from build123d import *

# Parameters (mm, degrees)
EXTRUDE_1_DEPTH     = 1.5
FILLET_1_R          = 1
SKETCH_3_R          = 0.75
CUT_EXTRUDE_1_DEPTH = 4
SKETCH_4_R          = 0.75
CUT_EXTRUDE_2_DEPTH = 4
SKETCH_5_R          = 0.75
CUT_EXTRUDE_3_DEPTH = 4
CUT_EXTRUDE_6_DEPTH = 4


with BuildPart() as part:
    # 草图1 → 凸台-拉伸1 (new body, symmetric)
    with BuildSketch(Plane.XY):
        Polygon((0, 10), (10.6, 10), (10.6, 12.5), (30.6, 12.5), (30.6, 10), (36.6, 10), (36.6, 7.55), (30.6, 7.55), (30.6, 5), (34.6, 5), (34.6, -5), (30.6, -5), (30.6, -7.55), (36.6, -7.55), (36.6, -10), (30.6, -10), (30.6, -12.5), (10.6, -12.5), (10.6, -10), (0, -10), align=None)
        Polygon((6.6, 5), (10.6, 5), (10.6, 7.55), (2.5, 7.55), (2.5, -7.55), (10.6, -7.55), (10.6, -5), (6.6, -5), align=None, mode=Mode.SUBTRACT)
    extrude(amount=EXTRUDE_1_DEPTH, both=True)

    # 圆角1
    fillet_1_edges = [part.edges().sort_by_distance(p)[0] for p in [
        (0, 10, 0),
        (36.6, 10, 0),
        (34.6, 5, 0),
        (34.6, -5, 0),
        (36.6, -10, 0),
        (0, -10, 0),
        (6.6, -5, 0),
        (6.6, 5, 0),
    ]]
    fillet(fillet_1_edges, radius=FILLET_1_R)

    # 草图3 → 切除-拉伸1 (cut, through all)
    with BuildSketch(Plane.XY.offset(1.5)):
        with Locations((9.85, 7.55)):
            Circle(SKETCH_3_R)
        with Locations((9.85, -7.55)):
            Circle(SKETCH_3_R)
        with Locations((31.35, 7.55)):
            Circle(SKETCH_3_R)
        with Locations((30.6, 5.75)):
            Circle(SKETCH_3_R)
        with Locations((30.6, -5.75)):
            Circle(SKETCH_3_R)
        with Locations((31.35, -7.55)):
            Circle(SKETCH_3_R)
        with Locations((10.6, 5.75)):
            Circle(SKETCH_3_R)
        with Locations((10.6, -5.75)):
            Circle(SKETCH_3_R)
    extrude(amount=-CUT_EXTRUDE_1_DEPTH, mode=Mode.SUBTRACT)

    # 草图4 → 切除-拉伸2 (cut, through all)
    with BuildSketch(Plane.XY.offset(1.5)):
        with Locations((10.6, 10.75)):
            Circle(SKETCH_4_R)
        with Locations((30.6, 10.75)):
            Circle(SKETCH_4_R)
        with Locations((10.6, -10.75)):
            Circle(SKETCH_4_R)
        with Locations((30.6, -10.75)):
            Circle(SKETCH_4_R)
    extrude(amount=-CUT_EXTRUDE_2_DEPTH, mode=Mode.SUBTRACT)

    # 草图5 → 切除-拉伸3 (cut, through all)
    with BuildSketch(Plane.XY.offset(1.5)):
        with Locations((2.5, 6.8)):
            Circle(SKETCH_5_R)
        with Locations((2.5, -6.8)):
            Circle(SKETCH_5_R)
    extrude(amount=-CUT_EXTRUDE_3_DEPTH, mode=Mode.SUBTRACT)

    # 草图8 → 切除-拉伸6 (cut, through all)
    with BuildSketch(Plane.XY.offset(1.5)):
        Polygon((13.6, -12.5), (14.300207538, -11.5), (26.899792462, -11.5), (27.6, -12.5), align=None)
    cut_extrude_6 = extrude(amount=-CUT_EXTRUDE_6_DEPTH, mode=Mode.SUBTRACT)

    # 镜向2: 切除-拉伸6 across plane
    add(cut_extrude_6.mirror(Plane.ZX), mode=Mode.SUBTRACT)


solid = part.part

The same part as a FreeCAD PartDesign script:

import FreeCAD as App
import Part
import Sketcher
Q = App.Units.Quantity


def edges_at(feature, points):
    """Names of the edges that pass closest to the given points."""
    edges = feature.Shape.Edges
    near = lambda p: min(range(len(edges)), key=lambda i: edges[i].distToShape(Part.Vertex(*p))[0])
    return sorted({f"Edge{near(p) + 1}" for p in points})


def add_polygon(sketch, points):
    """Adds a closed chain of lines whose ends are joined by coincident constraints."""
    first, n = sketch.GeometryCount, len(points)
    for a, b in zip(points, points[1:] + points[:1]):
        sketch.addGeometry(Part.LineSegment(App.Vector(*a, 0), App.Vector(*b, 0)), False)
    for i in range(n):
        sketch.addConstraint(Sketcher.Constraint("Coincident", first + i, 2, first + (i + 1) % n, 1))

doc = App.newDocument("Part")
body = doc.addObject("PartDesign::Body", "Body")

# Sketch on XY plane
sketch1 = body.newObject("Sketcher::SketchObject", "Sketch")
sketch1.AttachmentSupport = (doc.getObject("XY_Plane"), [""])
sketch1.MapMode = "FlatFace"
add_polygon(sketch1, [(10.6, 10), (0, 10), (0, -10), (10.6, -10), (10.6, -12.5), (30.6, -12.5), (30.6, -10), (36.6, -10), (36.6, -7.5), (30.6, -7.5), (30.6, -5), (34.6, -5), (34.6, 5), (30.6, 5), (30.6, 7.5), (36.6, 7.5), (36.6, 10), (30.6, 10), (30.6, 12.5), (10.6, 12.5)])  # lines 0-19
add_polygon(sketch1, [(6.6, 5), (6.6, -5), (10.6, -5), (10.6, -7.5), (2.5, -7.5), (2.5, 7.5), (10.6, 7.5), (10.6, 5)])  # lines 20-27
sketch1.addConstraint([
    Sketcher.Constraint("Horizontal", 0),
    Sketcher.Constraint("Vertical", 1),
    Sketcher.Constraint("Horizontal", 2),
    Sketcher.Constraint("Vertical", 3),
    Sketcher.Constraint("Horizontal", 4),
    Sketcher.Constraint("Vertical", 5),
    Sketcher.Constraint("Horizontal", 6),
    Sketcher.Constraint("Vertical", 7),
    Sketcher.Constraint("Horizontal", 8),
    Sketcher.Constraint("Vertical", 9),
    Sketcher.Constraint("Horizontal", 10),
    Sketcher.Constraint("Vertical", 11),
    Sketcher.Constraint("Horizontal", 12),
    Sketcher.Constraint("Vertical", 13),
    Sketcher.Constraint("Horizontal", 14),
    Sketcher.Constraint("Vertical", 15),
    Sketcher.Constraint("Horizontal", 16),
    Sketcher.Constraint("Vertical", 17),
    Sketcher.Constraint("Horizontal", 18),
    Sketcher.Constraint("Vertical", 19),
    Sketcher.Constraint("Vertical", 20),
    Sketcher.Constraint("Horizontal", 21),
    Sketcher.Constraint("Vertical", 22),
    Sketcher.Constraint("Horizontal", 23),
    Sketcher.Constraint("Vertical", 24),
    Sketcher.Constraint("Horizontal", 25),
    Sketcher.Constraint("Vertical", 26),
    Sketcher.Constraint("Horizontal", 27),
    Sketcher.Constraint("Symmetric", 0, 2, 1, 2, -1, 1),
    Sketcher.Constraint("Symmetric", 9, 2, 12, 2, -1),
    Sketcher.Constraint("Symmetric", 7, 2, 14, 2, -1),
    Sketcher.Constraint("Symmetric", 5, 2, 16, 2, -1),
    Sketcher.Constraint("Symmetric", 3, 2, 18, 2, -1),
    Sketcher.Constraint("Symmetric", 22, 2, 25, 2, -1),
    Sketcher.Constraint("Horizontal", 2, 2, 5, 2),
    Sketcher.Constraint("Horizontal", 10, 2, 20, 2),
    Sketcher.Constraint("Horizontal", 8, 2, 22, 2),
    Sketcher.Constraint("Horizontal", 12, 2, 26, 2),
    Sketcher.Constraint("Vertical", 5, 2, 8, 2),
    Sketcher.Constraint("Vertical", 19, 2, 21, 2),
    Sketcher.Constraint("Equal", 12, 21),
    Sketcher.Constraint("Equal", 18, 1),
    Sketcher.Constraint("DistanceX", 4, 1, 4, 2, Q("20 mm")),
    Sketcher.Constraint("DistanceX", 6, 1, 6, 2, Q("6 mm")),
    Sketcher.Constraint("DistanceX", 10, 1, 10, 2, Q("4 mm")),
    Sketcher.Constraint("DistanceY", 11, 1, 11, 2, Q("10 mm")),
    Sketcher.Constraint("DistanceX", 0, 2, 0, 1, Q("10.6 mm")),
    Sketcher.Constraint("DistanceX", 23, 2, 23, 1, Q("8.1 mm")),
    Sketcher.Constraint("DistanceY", 3, 2, 3, 1, Q("2.5 mm")),
    Sketcher.Constraint("DistanceY", 24, 1, 24, 2, Q("15.1 mm")),
])
pad1 = body.newObject("PartDesign::Pad", "Pad")
pad1.Profile = sketch1
pad1.Length = 3
pad1.Midplane = True
doc.recompute()

fillet = body.newObject("PartDesign::Fillet", "Fillet")
fillet.Base = (pad1, edges_at(pad1, [
    (0, 10, 0),
    (36.6, 10, 0),
    (34.6, 5, 0),
    (34.6, -5, 0),
    (36.6, -10, 0),
    (0, -10, 0),
    (6.6, -5, 0),
    (6.6, 5, 0),
]))
fillet.Radius = 1

# Sketch on XY plane
sketch2 = body.newObject("Sketcher::SketchObject", "Sketch001")
sketch2.AttachmentSupport = (doc.getObject("XY_Plane"), [""])
sketch2.MapMode = "FlatFace"
sketch2.AttachmentOffset = App.Placement(App.Vector(0, 0, 1.5), App.Rotation())
sketch2.addGeometry([
    Part.Circle(App.Vector(9.8, 7.5, 0), App.Vector(0, 0, 1), 0.8),  # 0
    Part.Circle(App.Vector(9.8, -7.5, 0), App.Vector(0, 0, 1), 0.8),  # 1
    Part.Circle(App.Vector(31.4, 7.5, 0), App.Vector(0, 0, 1), 0.8),  # 2
    Part.Circle(App.Vector(30.6, 5.8, 0), App.Vector(0, 0, 1), 0.8),  # 3
    Part.Circle(App.Vector(30.6, -5.8, 0), App.Vector(0, 0, 1), 0.8),  # 4
    Part.Circle(App.Vector(31.4, -7.5, 0), App.Vector(0, 0, 1), 0.8),  # 5
    Part.Circle(App.Vector(10.6, 5.8, 0), App.Vector(0, 0, 1), 0.8),  # 6
    Part.Circle(App.Vector(10.6, -5.8, 0), App.Vector(0, 0, 1), 0.8),  # 7
], False)
sketch2.addConstraint([
    Sketcher.Constraint("Equal", 0, 1),
    Sketcher.Constraint("Equal", 1, 2),
    Sketcher.Constraint("Equal", 2, 3),
    Sketcher.Constraint("Equal", 3, 4),
    Sketcher.Constraint("Equal", 4, 5),
    Sketcher.Constraint("Equal", 5, 6),
    Sketcher.Constraint("Equal", 6, 7),
    Sketcher.Constraint("Symmetric", 0, 3, 1, 3, -1),
    Sketcher.Constraint("Symmetric", 3, 3, 4, 3, -1),
    Sketcher.Constraint("Symmetric", 2, 3, 5, 3, -1),
    Sketcher.Constraint("Symmetric", 6, 3, 7, 3, -1),
    Sketcher.Constraint("Horizontal", 0, 3, 2, 3),
    Sketcher.Constraint("Horizontal", 3, 3, 6, 3),
    Sketcher.Constraint("Diameter", 0, Q("1.5 mm")),
    Sketcher.Constraint("DistanceX", 6, 3, 3, 3, Q("20 mm")),
    Sketcher.Constraint("DistanceX", -1, 1, 3, 3, Q("30.6 mm")),
    Sketcher.Constraint("DistanceY", 1, 3, 0, 3, Q("15.1 mm")),
    Sketcher.Constraint("DistanceX", 0, 3, 2, 3, Q("21.5 mm")),
    Sketcher.Constraint("DistanceY", 3, 3, 2, 3, Q("1.8 mm")),
    Sketcher.Constraint("DistanceX", -1, 1, 0, 3, Q("9.85 mm")),
])
pocket1 = body.newObject("PartDesign::Pocket", "Pocket")
pocket1.Profile = sketch2
pocket1.Type = "ThroughAll"

# Sketch on XY plane
sketch3 = body.newObject("Sketcher::SketchObject", "Sketch002")
sketch3.AttachmentSupport = (doc.getObject("XY_Plane"), [""])
sketch3.MapMode = "FlatFace"
sketch3.AttachmentOffset = App.Placement(App.Vector(0, 0, 1.5), App.Rotation())
sketch3.addGeometry([
    Part.Circle(App.Vector(10.6, 10.8, 0), App.Vector(0, 0, 1), 0.8),
    Part.Circle(App.Vector(30.6, 10.8, 0), App.Vector(0, 0, 1), 0.8),
    Part.Circle(App.Vector(10.6, -10.8, 0), App.Vector(0, 0, 1), 0.8),
    Part.Circle(App.Vector(30.6, -10.8, 0), App.Vector(0, 0, 1), 0.8),
], False)
sketch3.addConstraint([
    Sketcher.Constraint("Equal", 0, 1),
    Sketcher.Constraint("Equal", 1, 2),
    Sketcher.Constraint("Equal", 2, 3),
    Sketcher.Constraint("Symmetric", 0, 3, 2, 3, -1),
    Sketcher.Constraint("Symmetric", 1, 3, 3, 3, -1),
    Sketcher.Constraint("Horizontal", 0, 3, 1, 3),
    Sketcher.Constraint("Diameter", 0, Q("1.5 mm")),
    Sketcher.Constraint("DistanceX", 0, 3, 1, 3, Q("20 mm")),
    Sketcher.Constraint("DistanceX", -1, 1, 0, 3, Q("10.6 mm")),
    Sketcher.Constraint("DistanceY", 2, 3, 0, 3, Q("21.5 mm")),
])
pocket2 = body.newObject("PartDesign::Pocket", "Pocket001")
pocket2.Profile = sketch3
pocket2.Type = "ThroughAll"

# Sketch on XY plane
sketch4 = body.newObject("Sketcher::SketchObject", "Sketch003")
sketch4.AttachmentSupport = (doc.getObject("XY_Plane"), [""])
sketch4.MapMode = "FlatFace"
sketch4.AttachmentOffset = App.Placement(App.Vector(0, 0, 1.5), App.Rotation())
sketch4.addGeometry([
    Part.Circle(App.Vector(2.5, 6.8, 0), App.Vector(0, 0, 1), 0.8),
    Part.Circle(App.Vector(2.5, -6.8, 0), App.Vector(0, 0, 1), 0.8),
], False)
sketch4.addConstraint([
    Sketcher.Constraint("Equal", 0, 1),
    Sketcher.Constraint("Symmetric", 0, 3, 1, 3, -1),
    Sketcher.Constraint("Diameter", 0, Q("1.5 mm")),
    Sketcher.Constraint("DistanceX", -1, 1, 0, 3, Q("2.5 mm")),
    Sketcher.Constraint("DistanceY", -1, 1, 0, 3, Q("6.8 mm")),
])
pocket3 = body.newObject("PartDesign::Pocket", "Pocket002")
pocket3.Profile = sketch4
pocket3.Type = "ThroughAll"

# Sketch on XY plane
sketch5 = body.newObject("Sketcher::SketchObject", "Sketch004")
sketch5.AttachmentSupport = (doc.getObject("XY_Plane"), [""])
sketch5.MapMode = "FlatFace"
sketch5.AttachmentOffset = App.Placement(App.Vector(0, 0, 1.5), App.Rotation())
add_polygon(sketch5, [(14.3, -11.5), (13.6, -12.5), (27.6, -12.5), (26.9, -11.5)])  # lines 0-3
sketch5.addConstraint([
    Sketcher.Constraint("Horizontal", 1),
    Sketcher.Constraint("Horizontal", 3),
    Sketcher.Constraint("Equal", 0, 2),
    Sketcher.Constraint("DistanceX", 1, 1, 1, 2, Q("14 mm")),
    Sketcher.Constraint("Angle", 0, Q("-125 deg")),
    Sketcher.Constraint("DistanceY", 1, 2, 2, 2, Q("1 mm")),
    Sketcher.Constraint("DistanceX", -1, 1, 0, 2, Q("13.6 mm")),
    Sketcher.Constraint("DistanceY", 0, 2, -1, 1, Q("12.5 mm")),
])
pocket4 = body.newObject("PartDesign::Pocket", "Pocket003")
pocket4.Profile = sketch5
pocket4.Type = "ThroughAll"
doc.recompute()

mirrored = body.newObject("PartDesign::Mirrored", "Mirrored")
mirrored.Originals = [pocket4]
mirrored.MirrorPlane = (doc.getObject("XZ_Plane"), [""])
body.Tip = mirrored

doc.recompute()
